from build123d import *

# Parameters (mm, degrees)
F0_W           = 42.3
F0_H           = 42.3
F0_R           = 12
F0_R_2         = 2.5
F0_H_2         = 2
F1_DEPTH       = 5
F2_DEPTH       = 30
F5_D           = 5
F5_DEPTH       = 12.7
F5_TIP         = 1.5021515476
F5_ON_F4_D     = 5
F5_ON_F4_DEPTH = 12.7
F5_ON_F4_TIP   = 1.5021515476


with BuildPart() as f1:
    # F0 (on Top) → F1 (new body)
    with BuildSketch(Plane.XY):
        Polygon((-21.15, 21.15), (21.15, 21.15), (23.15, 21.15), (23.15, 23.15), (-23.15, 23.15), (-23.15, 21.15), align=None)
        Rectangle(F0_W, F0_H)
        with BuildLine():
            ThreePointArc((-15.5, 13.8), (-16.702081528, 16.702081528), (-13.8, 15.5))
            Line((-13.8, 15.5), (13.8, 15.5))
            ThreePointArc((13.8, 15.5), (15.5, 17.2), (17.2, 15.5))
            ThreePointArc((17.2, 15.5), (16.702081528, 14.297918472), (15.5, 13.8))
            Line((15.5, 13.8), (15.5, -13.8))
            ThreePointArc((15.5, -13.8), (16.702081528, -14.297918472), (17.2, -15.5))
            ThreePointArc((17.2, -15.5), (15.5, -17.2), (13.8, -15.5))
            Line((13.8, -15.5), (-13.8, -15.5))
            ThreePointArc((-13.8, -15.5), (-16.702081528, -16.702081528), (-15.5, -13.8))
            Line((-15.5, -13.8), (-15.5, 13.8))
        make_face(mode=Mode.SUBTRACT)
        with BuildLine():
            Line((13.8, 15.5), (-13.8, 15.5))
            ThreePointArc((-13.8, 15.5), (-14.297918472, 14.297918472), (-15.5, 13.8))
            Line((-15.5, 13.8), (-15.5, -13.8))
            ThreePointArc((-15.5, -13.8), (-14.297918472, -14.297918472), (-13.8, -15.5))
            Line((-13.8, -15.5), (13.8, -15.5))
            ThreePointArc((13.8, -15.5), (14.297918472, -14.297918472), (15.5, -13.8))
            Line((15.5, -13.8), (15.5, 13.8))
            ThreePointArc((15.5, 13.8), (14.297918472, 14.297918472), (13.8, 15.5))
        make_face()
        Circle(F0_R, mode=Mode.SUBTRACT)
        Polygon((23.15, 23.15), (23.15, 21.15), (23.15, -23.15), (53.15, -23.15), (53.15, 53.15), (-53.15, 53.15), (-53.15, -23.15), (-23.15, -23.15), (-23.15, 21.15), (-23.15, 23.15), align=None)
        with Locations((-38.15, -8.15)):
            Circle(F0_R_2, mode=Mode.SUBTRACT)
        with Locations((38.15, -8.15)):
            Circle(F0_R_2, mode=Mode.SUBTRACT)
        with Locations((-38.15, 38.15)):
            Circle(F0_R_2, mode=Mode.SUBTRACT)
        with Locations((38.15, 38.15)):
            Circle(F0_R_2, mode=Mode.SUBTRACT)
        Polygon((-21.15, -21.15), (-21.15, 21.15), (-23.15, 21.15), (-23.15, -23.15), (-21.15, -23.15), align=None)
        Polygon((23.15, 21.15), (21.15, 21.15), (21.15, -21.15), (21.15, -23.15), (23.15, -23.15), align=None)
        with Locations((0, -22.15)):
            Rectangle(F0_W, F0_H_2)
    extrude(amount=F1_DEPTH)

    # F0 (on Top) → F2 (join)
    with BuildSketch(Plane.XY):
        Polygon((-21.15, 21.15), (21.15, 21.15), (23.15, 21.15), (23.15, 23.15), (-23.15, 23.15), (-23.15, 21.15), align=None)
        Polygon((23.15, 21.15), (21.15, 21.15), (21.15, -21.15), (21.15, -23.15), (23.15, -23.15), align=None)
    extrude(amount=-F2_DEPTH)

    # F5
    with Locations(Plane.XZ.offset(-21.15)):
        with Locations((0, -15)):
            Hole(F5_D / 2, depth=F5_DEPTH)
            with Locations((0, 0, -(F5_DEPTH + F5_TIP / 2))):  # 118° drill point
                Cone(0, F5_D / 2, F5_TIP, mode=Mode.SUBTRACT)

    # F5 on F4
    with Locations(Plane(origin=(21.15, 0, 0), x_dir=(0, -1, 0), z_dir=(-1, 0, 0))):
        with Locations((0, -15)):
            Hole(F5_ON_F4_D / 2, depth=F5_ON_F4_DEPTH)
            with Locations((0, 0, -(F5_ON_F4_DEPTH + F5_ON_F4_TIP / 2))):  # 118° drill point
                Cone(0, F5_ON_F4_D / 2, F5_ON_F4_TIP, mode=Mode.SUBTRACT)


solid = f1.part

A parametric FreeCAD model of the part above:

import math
import FreeCAD as App
import Part
import Sketcher

V = App.Vector


def add_polygon(sketch, points):
    """Adds a closed chain of lines whose ends are joined by coincident constraints."""
    first, n = sketch.GeometryCount, len(points)
    for a, b in zip(points, points[1:] + points[:1]):
        sketch.addGeometry(Part.LineSegment(App.Vector(*a, 0), App.Vector(*b, 0)), False)
    for i in range(n):
        sketch.addConstraint(Sketcher.Constraint("Coincident", first + i, 2, first + (i + 1) % n, 1))

doc = App.newDocument("Part")
body = doc.addObject("PartDesign::Body", "Body")

sketch1 = body.newObject("Sketcher::SketchObject", "Sketch")
sketch1.AttachmentSupport = (doc.getObject("XY_Plane"), [""])
sketch1.MapMode = "FlatFace"
add_polygon(sketch1, [(53.15, -23.15), (53.15, 53.15), (-53.15, 53.15), (-53.15, -23.15)])
sketch1.addGeometry(Part.Circle(V(-38.15, -8.15, 0), V(0, 0, 1), 2.5), False)
sketch1.addGeometry(Part.ArcOfCircle(Part.Circle(V(-15.5, -15.5, 0), V(0, 0, 1), 1.7), math.radians(90), math.radians(360)), False)
sketch1.addGeometry(Part.ArcOfCircle(Part.Circle(V(-15.5, -15.5, 0), V(0, 0, 1), 1.7), math.radians(0), math.radians(90)), False)
sketch1.addGeometry(Part.ArcOfCircle(Part.Circle(V(15.5, -15.5, 0), V(0, 0, 1), 1.7), math.radians(180), math.radians(360)), False)
sketch1.addGeometry(Part.ArcOfCircle(Part.Circle(V(15.5, -15.5, 0), V(0, 0, 1), 1.7), math.radians(90), math.radians(180)), False)
sketch1.addGeometry(Part.ArcOfCircle(Part.Circle(V(15.5, -15.5, 0), V(0, 0, 1), 1.7), math.radians(0), math.radians(90)), False)
sketch1.addGeometry(Part.Circle(V(38.15, -8.15, 0), V(0, 0, 1), 2.5), False)
sketch1.addGeometry(Part.Circle(V(0, 0, 0), V(0, 0, 1), 12), False)
sketch1.addGeometry(Part.ArcOfCircle(Part.Circle(V(-15.5, 15.5, 0), V(0, 0, 1), 1.7), math.radians(0), math.radians(270)), False)
sketch1.addGeometry(Part.ArcOfCircle(Part.Circle(V(-15.5, 15.5, 0), V(0, 0, 1), 1.7), math.radians(-90), math.radians(0)), False)
sketch1.addGeometry(Part.Circle(V(-38.15, 38.15, 0), V(0, 0, 1), 2.5), False)
sketch1.addGeometry(Part.ArcOfCircle(Part.Circle(V(15.5, 15.5, 0), V(0, 0, 1), 1.7), math.radians(-90), math.radians(0)), False)
sketch1.addGeometry(Part.ArcOfCircle(Part.Circle(V(15.5, 15.5, 0), V(0, 0, 1), 1.7), math.radians(180), math.radians(270)), False)
sketch1.addGeometry(Part.ArcOfCircle(Part.Circle(V(15.5, 15.5, 0), V(0, 0, 1), 1.7), math.radians(0), math.radians(180)), False)
sketch1.addGeometry(Part.Circle(V(38.15, 38.15, 0), V(0, 0, 1), 2.5), False)
sketch1.addConstraint([
    Sketcher.Constraint("Tangent", 5, 1, 6, 2),
    Sketcher.Constraint("Coincident", 6, 1, 5, 2),
    Sketcher.Constraint("Tangent", 7, 1, 8, 2),
    Sketcher.Constraint("Tangent", 8, 1, 9, 2),
    Sketcher.Constraint("Tangent", 9, 1, 7, 2),
    Sketcher.Constraint("Tangent", 12, 1, 13, 2),
    Sketcher.Constraint("Coincident", 13, 1, 12, 2),
    Sketcher.Constraint("Tangent", 15, 1, 16, 2),
    Sketcher.Constraint("Tangent", 16, 1, 17, 2),
    Sketcher.Constraint("Tangent", 17, 1, 15, 2),
    Sketcher.Constraint("Vertical", 0),
    Sketcher.Constraint("Horizontal", 1),
    Sketcher.Constraint("Vertical", 2),
    Sketcher.Constraint("Horizontal", 3),
    Sketcher.Constraint("Coincident", 11, 3, -1, 1),
    Sketcher.Constraint("Equal", 6, 7),
    Sketcher.Constraint("Equal", 4, 10),
    Sketcher.Constraint("Equal", 9, 12),
    Sketcher.Constraint("Equal", 10, 14),
    Sketcher.Constraint("Equal", 13, 15),
    Sketcher.Constraint("Equal", 14, 18),
    Sketcher.Constraint("Symmetric", 7, 3, 12, 3, -1, 1),
    Sketcher.Constraint("Symmetric", 5, 3, 15, 3, -1, 1),
    Sketcher.Constraint("Symmetric", 5, 3, 7, 3, -2),
    Sketcher.Constraint("Symmetric", 4, 3, 10, 3, -2),
    Sketcher.Constraint("Symmetric", 14, 3, 18, 3, -2),
    Sketcher.Constraint("Horizontal", 9, 3, 6, 1),
    Sketcher.Constraint("Horizontal", 6, 1, 7, 1),
    Sketcher.Constraint("Horizontal", 7, 1, 9, 1),
    Sketcher.Constraint("Horizontal", 17, 3, 12, 1),
    Sketcher.Constraint("Horizontal", 12, 1, 16, 1),
    Sketcher.Constraint("Horizontal", 16, 1, 17, 1),
    Sketcher.Constraint("Vertical", 4, 3, 14, 3),
    Sketcher.Constraint("Vertical", 13, 3, 5, 1),
    Sketcher.Constraint("Vertical", 17, 3, 8, 1),
    Sketcher.Constraint("Vertical", 5, 1, 13, 1),
    Sketcher.Constraint("Vertical", 8, 1, 15, 1),
    Sketcher.Constraint("Diameter", 4, 5.0),
    Sketcher.Constraint("Diameter", 11, 24.0),
    Sketcher.Constraint("Radius", 5, 1.7),
    Sketcher.Constraint("DistanceX", 1, 2, 1, 1, 106.3),
    Sketcher.Constraint("DistanceY", 0, 1, 0, 2, 76.3),
    Sketcher.Constraint("DistanceX", 5, 3, 7, 3, 31.0),
    Sketcher.Constraint("DistanceY", 5, 3, 12, 3, 31.0),
    Sketcher.Constraint("DistanceX", 18, 3, 0, 2, 15.0),
    Sketcher.Constraint("DistanceY", 18, 3, 0, 2, 15.0),
    Sketcher.Constraint("DistanceX", 1, 2, 14, 3, 15.0),
    Sketcher.Constraint("DistanceY", 2, 2, 4, 3, 15.0),
    Sketcher.Constraint("DistanceY", 4, 3, -1, 1, 8.15),
])
pad1 = body.newObject("PartDesign::Pad", "Pad")
pad1.Profile = sketch1
pad1.Length = 5

sketch2 = body.newObject("Sketcher::SketchObject", "Sketch001")
sketch2.AttachmentSupport = (doc.getObject("XY_Plane"), [""])
sketch2.MapMode = "FlatFace"
add_polygon(sketch2, [(23.15, 23.15), (-23.15, 23.15), (-23.15, 21.15), (21.15, 21.15), (21.15, -23.15), (23.15, -23.15)])
sketch2.addConstraint([
    Sketcher.Constraint("Horizontal", 0),
    Sketcher.Constraint("Vertical", 1),
    Sketcher.Constraint("Horizontal", 2),
    Sketcher.Constraint("Vertical", 3),
    Sketcher.Constraint("Horizontal", 4),
    Sketcher.Constraint("Vertical", 5),
    Sketcher.Constraint("Symmetric", 0, 2, 4, 2, -1, 1),
    Sketcher.Constraint("Equal", 4, 1),
    Sketcher.Constraint("Equal", 2, 3),
    Sketcher.Constraint("DistanceX", 4, 1, 4, 2, 2.0),
    Sketcher.Constraint("DistanceX", 0, 2, 0, 1, 46.3),
])
pad2 = body.newObject("PartDesign::Pad", "Pad001")
pad2.Profile = sketch2
pad2.Length = 30
pad2.Reversed = True

sketch3 = body.newObject("Sketcher::SketchObject", "Sketch002")
sketch3.AttachmentSupport = (doc.getObject("XZ_Plane"), [""])
sketch3.MapMode = "FlatFace"
sketch3.AttachmentOffset = App.Placement(V(0, 0, -21.15), App.Rotation())
sketch3.addGeometry(Part.Circle(V(0, -15, 0), V(0, 0, 1), 2.5), False)
sketch3.addConstraint([
    Sketcher.Constraint("PointOnObject", 0, 3, -2),
    Sketcher.Constraint("Diameter", 0, 5.0),
    Sketcher.Constraint("DistanceY", 0, 3, -1, 1, 15.0),
])
doc.recompute()
hole = body.newObject("PartDesign::Hole", "Hole")
hole.Profile = sketch3
hole.ThreadType = "None"
hole.Diameter = 5
hole.DepthType = "Dimension"
hole.Depth = 12.7
hole.DrillPoint = "Angled"
hole.DrillPointAngle = 118

sketch4 = body.newObject("Sketcher::SketchObject", "Sketch003")
sketch4.AttachmentSupport = (doc.getObject("YZ_Plane"), [""])
sketch4.MapMode = "FlatFace"
sketch4.AttachmentOffset = App.Placement(V(0, 0, 21.15), App.Rotation())
sketch4.addGeometry(Part.Circle(V(0, -15, 0), V(0, 0, 1), 2.5), False)
sketch4.addConstraint([
    Sketcher.Constraint("PointOnObject", 0, 3, -2),
    Sketcher.Constraint("Diameter", 0, 5.0),
    Sketcher.Constraint("DistanceY", 0, 3, -1, 1, 15.0),
])
doc.recompute()
hole2 = body.newObject("PartDesign::Hole", "Hole001")
hole2.Profile = sketch4
hole2.ThreadType = "None"
hole2.Diameter = 5
hole2.DepthType = "Dimension"
hole2.Depth = 12.7
hole2.DrillPoint = "Angled"
hole2.DrillPointAngle = 118
hole2.Reversed = True

doc.recompute()
